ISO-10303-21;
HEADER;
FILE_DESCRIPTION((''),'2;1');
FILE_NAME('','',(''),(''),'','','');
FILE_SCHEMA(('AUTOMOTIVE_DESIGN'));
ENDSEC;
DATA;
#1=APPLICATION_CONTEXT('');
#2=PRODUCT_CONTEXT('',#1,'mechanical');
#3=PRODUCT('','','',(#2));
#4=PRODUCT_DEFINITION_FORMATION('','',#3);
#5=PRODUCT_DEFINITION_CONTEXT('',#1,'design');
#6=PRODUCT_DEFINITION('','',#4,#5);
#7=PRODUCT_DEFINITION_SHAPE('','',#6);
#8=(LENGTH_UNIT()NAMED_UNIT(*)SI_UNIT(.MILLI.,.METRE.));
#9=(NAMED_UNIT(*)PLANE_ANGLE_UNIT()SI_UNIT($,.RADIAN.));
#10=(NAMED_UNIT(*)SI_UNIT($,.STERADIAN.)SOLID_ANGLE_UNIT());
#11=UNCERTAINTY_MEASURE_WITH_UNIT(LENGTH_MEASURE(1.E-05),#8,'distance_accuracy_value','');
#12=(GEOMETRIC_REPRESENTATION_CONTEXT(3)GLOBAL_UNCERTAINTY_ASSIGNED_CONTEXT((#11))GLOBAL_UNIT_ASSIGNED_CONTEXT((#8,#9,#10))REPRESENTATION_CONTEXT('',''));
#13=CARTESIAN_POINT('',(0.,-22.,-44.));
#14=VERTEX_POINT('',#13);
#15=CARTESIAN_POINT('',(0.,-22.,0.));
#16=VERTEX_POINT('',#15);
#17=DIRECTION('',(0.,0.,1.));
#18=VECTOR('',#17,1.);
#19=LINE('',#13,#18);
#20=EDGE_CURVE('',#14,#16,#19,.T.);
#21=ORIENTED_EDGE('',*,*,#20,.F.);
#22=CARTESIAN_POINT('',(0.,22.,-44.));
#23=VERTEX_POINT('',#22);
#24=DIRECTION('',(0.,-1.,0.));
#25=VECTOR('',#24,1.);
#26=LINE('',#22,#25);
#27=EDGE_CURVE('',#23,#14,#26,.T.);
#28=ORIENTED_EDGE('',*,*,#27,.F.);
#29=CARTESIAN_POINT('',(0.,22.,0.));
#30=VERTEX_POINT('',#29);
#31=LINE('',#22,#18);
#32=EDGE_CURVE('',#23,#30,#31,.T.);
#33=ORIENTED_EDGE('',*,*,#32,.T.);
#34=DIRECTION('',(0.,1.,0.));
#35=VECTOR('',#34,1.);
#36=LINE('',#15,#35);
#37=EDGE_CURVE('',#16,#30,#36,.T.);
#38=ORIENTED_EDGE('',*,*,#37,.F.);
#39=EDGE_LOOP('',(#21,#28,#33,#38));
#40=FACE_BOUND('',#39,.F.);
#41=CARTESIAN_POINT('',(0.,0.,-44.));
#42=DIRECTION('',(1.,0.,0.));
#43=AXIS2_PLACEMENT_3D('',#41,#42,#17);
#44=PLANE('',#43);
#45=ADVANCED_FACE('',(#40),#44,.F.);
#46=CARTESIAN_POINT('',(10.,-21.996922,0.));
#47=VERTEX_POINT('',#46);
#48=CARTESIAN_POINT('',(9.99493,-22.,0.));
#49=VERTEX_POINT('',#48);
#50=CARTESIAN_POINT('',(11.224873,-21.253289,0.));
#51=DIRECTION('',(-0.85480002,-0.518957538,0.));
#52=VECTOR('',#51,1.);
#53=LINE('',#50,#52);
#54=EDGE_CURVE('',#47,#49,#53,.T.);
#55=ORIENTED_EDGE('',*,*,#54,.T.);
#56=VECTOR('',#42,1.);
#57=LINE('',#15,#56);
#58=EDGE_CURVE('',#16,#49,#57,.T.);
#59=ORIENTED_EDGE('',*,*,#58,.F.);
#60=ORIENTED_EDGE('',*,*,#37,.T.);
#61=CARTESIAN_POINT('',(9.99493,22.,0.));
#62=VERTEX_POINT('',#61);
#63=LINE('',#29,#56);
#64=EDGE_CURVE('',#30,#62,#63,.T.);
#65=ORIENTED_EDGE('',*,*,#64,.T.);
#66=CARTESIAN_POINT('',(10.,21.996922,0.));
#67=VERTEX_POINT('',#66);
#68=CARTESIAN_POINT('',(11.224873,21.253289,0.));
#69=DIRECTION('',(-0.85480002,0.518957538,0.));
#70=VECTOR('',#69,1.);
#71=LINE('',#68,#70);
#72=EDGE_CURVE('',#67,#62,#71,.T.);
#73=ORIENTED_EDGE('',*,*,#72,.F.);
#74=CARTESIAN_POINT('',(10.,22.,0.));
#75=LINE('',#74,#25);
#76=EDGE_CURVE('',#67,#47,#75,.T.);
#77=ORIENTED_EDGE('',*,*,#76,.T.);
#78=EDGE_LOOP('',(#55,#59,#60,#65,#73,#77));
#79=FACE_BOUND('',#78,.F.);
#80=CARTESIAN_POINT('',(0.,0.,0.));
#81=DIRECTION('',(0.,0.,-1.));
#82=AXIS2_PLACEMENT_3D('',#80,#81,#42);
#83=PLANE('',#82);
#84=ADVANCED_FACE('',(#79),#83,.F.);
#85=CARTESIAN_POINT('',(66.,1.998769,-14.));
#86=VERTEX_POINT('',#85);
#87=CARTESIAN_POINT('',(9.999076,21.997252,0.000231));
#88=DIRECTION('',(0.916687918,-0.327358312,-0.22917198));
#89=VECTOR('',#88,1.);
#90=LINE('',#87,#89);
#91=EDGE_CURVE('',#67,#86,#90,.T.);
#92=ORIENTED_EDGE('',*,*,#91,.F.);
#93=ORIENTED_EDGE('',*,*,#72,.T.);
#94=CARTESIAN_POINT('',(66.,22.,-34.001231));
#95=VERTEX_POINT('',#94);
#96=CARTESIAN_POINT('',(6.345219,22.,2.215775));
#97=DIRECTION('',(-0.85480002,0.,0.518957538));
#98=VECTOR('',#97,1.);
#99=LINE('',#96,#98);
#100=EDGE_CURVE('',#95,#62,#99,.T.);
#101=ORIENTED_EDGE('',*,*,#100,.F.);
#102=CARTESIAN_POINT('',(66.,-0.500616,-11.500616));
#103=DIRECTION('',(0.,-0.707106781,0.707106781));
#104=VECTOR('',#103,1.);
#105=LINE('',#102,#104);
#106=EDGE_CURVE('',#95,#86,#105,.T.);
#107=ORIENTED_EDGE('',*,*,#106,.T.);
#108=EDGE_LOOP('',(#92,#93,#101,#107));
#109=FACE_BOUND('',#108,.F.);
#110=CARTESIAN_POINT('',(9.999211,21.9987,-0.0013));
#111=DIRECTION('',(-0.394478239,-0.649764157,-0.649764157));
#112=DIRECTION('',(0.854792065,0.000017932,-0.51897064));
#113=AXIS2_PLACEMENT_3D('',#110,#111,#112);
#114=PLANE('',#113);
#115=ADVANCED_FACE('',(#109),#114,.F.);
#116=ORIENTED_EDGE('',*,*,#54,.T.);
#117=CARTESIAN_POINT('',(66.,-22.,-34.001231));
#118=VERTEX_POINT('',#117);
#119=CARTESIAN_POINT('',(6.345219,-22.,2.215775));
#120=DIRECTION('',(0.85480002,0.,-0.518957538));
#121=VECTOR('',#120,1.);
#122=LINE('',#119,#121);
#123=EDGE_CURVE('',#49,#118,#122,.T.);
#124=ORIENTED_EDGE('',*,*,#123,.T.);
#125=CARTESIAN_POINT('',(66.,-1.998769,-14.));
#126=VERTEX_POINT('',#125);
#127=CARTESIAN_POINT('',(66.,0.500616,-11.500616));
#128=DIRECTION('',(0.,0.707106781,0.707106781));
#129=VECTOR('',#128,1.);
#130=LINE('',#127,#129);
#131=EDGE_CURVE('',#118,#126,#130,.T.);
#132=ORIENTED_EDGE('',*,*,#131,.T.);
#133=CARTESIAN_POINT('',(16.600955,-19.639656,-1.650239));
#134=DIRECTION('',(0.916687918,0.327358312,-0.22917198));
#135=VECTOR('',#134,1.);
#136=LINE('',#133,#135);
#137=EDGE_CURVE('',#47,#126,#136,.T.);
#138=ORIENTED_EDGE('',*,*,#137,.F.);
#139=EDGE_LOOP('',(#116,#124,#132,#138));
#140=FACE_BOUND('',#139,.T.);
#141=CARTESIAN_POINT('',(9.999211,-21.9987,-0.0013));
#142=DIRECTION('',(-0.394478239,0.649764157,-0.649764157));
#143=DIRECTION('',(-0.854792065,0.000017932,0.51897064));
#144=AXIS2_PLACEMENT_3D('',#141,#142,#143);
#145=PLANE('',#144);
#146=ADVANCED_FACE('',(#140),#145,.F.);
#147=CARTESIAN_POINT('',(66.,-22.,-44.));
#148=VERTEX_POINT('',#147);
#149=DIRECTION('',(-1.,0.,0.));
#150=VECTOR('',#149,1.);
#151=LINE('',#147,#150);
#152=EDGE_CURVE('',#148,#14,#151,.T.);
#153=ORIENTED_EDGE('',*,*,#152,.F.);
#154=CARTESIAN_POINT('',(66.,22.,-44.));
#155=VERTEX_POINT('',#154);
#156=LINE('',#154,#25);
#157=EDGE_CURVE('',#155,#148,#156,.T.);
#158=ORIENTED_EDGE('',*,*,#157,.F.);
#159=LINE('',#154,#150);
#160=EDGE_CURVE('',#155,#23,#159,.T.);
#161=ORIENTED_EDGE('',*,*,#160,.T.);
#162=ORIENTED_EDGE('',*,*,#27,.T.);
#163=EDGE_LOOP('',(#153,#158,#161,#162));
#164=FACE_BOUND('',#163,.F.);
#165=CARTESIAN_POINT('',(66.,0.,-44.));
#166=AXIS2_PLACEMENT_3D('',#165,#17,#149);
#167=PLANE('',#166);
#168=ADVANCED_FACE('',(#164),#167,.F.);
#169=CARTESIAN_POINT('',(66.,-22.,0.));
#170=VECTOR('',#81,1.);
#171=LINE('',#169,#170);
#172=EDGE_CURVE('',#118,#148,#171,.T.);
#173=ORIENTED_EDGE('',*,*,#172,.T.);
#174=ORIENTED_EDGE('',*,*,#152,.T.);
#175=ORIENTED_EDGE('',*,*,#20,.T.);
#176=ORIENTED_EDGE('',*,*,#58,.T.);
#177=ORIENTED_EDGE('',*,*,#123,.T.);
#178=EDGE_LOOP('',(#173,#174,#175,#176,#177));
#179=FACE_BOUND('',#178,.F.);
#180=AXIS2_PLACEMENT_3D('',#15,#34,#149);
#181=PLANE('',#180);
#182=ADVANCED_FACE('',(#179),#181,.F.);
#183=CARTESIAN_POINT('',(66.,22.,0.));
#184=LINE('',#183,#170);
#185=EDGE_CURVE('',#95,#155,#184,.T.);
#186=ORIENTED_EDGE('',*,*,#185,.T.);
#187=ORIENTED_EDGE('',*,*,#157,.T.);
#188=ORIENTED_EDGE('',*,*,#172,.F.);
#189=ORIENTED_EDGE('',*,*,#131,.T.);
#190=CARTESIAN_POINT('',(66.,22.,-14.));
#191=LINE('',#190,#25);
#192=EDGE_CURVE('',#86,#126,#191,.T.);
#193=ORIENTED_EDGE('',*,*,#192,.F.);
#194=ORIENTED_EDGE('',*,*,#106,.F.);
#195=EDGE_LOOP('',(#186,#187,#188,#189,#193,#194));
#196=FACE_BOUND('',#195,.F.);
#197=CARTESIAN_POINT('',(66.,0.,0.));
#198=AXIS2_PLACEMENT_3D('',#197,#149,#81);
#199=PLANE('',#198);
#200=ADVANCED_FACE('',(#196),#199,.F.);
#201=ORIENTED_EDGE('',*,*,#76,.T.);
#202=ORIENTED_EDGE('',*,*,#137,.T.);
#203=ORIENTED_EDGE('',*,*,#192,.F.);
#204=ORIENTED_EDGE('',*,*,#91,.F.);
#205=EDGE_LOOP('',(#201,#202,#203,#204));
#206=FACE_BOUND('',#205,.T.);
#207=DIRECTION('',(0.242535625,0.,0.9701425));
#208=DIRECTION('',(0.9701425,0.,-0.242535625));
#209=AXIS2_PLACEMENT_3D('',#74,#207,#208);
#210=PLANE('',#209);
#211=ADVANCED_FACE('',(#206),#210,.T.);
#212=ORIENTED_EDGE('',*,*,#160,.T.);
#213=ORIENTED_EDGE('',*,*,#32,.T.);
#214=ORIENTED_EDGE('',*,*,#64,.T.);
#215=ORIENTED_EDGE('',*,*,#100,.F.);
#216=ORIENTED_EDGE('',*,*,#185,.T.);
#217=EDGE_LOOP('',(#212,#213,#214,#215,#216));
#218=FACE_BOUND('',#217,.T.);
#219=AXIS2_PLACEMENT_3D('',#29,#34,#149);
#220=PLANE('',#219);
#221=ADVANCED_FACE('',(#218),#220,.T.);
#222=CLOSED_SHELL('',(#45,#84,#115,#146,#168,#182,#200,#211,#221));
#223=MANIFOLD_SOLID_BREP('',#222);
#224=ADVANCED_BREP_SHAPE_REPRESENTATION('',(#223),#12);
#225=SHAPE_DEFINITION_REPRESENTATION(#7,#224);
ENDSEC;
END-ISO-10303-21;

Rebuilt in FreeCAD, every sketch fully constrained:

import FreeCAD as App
import Part
import Sketcher

V = App.Vector
Q = App.Units.Quantity


def add_polygon(sketch, points):
    """Adds a closed chain of lines whose ends are joined by coincident constraints."""
    first, n = sketch.GeometryCount, len(points)
    for a, b in zip(points, points[1:] + points[:1]):
        sketch.addGeometry(Part.LineSegment(App.Vector(*a, 0), App.Vector(*b, 0)), False)
    for i in range(n):
        sketch.addConstraint(Sketcher.Constraint("Coincident", first + i, 2, first + (i + 1) % n, 1))

doc = App.newDocument("Part")
body = doc.addObject("PartDesign::Body", "Body")

# Sketch on XZ plane
sketch1 = body.newObject("Sketcher::SketchObject", "Sketch")
sketch1.AttachmentSupport = (doc.getObject("XZ_Plane"), [""])
sketch1.MapMode = "FlatFace"
add_polygon(sketch1, [(0, -44), (0, 0), (66, 0), (66, -44)])  # lines 0-3
sketch1.addConstraint([
    Sketcher.Constraint("Vertical", 0),
    Sketcher.Constraint("Horizontal", 1),
    Sketcher.Constraint("Vertical", 2),
    Sketcher.Constraint("Horizontal", 3),
    Sketcher.Constraint("Coincident", 0, 2, -1, 1),
    Sketcher.Constraint("DistanceX", 1, 1, 1, 2, Q("66 mm")),
    Sketcher.Constraint("DistanceY", 0, 1, 0, 2, Q("44 mm")),
])
pad1 = body.newObject("PartDesign::Pad", "Pad")
pad1.Profile = sketch1
pad1.Length = 44
pad1.Midplane = True

# Sketch on XZ plane
sketch2 = body.newObject("Sketcher::SketchObject", "Sketch001")
sketch2.AttachmentSupport = (doc.getObject("XZ_Plane"), [""])
sketch2.MapMode = "FlatFace"
sketch2.AttachmentOffset = App.Placement(V(0, 0, -22), App.Rotation())
add_polygon(sketch2, [(66, -14), (10, 0), (66, 0)])  # lines 0-2
sketch2.addConstraint([
    Sketcher.Constraint("Horizontal", 1),
    Sketcher.Constraint("Vertical", 2),
    Sketcher.Constraint("PointOnObject", 0, 2, -1),
    Sketcher.Constraint("DistanceX", -1, 1, 0, 2, Q("10 mm")),
    Sketcher.Constraint("DistanceX", 1, 1, 1, 2, Q("56 mm")),
    Sketcher.Constraint("DistanceY", 2, 2, 2, 1, Q("14 mm")),
])
pocket1 = body.newObject("PartDesign::Pocket", "Pocket")
pocket1.Profile = sketch2
pocket1.Length = 60
pocket1.Reversed = True

# Sketch on an angled plane
sketch3 = body.newObject("Sketcher::SketchObject", "Sketch002")
sketch3.Placement = App.Placement(V(10, 22, 0), App.Rotation(V(0.854792065, 0.000017932, -0.51897064), V(0.337220172, -0.76013587, 0.555406172), V(-0.394478239, -0.649764157, -0.649764157), "ZXY"))
add_polygon(sketch3, [(-15.1543, 28.8166), (-15.1543, -12.3218), (93.717, -12.3218), (93.717, 28.8166)])  # lines 0-3
sketch3.addConstraint([
    Sketcher.Constraint("Vertical", 0),
    Sketcher.Constraint("Horizontal", 1),
    Sketcher.Constraint("Vertical", 2),
    Sketcher.Constraint("Horizontal", 3),
    Sketcher.Constraint("DistanceX", 1, 1, 1, 2, Q("108.8713 mm")),
    Sketcher.Constraint("DistanceY", 0, 2, 0, 1, Q("41.1384 mm")),
    Sketcher.Constraint("DistanceX", -1, 1, 1, 2, Q("93.717 mm")),
    Sketcher.Constraint("DistanceY", 0, 2, -1, 1, Q("12.3218 mm")),
])
pocket2 = body.newObject("PartDesign::Pocket", "Pocket001")
pocket2.Profile = sketch3
pocket2.Length = 40
doc.recompute()

mirrored = body.newObject("PartDesign::Mirrored", "Mirrored")
mirrored.Originals = [pocket2]
mirrored.MirrorPlane = (doc.getObject("XZ_Plane"), [""])
body.Tip = mirrored

doc.recompute()
